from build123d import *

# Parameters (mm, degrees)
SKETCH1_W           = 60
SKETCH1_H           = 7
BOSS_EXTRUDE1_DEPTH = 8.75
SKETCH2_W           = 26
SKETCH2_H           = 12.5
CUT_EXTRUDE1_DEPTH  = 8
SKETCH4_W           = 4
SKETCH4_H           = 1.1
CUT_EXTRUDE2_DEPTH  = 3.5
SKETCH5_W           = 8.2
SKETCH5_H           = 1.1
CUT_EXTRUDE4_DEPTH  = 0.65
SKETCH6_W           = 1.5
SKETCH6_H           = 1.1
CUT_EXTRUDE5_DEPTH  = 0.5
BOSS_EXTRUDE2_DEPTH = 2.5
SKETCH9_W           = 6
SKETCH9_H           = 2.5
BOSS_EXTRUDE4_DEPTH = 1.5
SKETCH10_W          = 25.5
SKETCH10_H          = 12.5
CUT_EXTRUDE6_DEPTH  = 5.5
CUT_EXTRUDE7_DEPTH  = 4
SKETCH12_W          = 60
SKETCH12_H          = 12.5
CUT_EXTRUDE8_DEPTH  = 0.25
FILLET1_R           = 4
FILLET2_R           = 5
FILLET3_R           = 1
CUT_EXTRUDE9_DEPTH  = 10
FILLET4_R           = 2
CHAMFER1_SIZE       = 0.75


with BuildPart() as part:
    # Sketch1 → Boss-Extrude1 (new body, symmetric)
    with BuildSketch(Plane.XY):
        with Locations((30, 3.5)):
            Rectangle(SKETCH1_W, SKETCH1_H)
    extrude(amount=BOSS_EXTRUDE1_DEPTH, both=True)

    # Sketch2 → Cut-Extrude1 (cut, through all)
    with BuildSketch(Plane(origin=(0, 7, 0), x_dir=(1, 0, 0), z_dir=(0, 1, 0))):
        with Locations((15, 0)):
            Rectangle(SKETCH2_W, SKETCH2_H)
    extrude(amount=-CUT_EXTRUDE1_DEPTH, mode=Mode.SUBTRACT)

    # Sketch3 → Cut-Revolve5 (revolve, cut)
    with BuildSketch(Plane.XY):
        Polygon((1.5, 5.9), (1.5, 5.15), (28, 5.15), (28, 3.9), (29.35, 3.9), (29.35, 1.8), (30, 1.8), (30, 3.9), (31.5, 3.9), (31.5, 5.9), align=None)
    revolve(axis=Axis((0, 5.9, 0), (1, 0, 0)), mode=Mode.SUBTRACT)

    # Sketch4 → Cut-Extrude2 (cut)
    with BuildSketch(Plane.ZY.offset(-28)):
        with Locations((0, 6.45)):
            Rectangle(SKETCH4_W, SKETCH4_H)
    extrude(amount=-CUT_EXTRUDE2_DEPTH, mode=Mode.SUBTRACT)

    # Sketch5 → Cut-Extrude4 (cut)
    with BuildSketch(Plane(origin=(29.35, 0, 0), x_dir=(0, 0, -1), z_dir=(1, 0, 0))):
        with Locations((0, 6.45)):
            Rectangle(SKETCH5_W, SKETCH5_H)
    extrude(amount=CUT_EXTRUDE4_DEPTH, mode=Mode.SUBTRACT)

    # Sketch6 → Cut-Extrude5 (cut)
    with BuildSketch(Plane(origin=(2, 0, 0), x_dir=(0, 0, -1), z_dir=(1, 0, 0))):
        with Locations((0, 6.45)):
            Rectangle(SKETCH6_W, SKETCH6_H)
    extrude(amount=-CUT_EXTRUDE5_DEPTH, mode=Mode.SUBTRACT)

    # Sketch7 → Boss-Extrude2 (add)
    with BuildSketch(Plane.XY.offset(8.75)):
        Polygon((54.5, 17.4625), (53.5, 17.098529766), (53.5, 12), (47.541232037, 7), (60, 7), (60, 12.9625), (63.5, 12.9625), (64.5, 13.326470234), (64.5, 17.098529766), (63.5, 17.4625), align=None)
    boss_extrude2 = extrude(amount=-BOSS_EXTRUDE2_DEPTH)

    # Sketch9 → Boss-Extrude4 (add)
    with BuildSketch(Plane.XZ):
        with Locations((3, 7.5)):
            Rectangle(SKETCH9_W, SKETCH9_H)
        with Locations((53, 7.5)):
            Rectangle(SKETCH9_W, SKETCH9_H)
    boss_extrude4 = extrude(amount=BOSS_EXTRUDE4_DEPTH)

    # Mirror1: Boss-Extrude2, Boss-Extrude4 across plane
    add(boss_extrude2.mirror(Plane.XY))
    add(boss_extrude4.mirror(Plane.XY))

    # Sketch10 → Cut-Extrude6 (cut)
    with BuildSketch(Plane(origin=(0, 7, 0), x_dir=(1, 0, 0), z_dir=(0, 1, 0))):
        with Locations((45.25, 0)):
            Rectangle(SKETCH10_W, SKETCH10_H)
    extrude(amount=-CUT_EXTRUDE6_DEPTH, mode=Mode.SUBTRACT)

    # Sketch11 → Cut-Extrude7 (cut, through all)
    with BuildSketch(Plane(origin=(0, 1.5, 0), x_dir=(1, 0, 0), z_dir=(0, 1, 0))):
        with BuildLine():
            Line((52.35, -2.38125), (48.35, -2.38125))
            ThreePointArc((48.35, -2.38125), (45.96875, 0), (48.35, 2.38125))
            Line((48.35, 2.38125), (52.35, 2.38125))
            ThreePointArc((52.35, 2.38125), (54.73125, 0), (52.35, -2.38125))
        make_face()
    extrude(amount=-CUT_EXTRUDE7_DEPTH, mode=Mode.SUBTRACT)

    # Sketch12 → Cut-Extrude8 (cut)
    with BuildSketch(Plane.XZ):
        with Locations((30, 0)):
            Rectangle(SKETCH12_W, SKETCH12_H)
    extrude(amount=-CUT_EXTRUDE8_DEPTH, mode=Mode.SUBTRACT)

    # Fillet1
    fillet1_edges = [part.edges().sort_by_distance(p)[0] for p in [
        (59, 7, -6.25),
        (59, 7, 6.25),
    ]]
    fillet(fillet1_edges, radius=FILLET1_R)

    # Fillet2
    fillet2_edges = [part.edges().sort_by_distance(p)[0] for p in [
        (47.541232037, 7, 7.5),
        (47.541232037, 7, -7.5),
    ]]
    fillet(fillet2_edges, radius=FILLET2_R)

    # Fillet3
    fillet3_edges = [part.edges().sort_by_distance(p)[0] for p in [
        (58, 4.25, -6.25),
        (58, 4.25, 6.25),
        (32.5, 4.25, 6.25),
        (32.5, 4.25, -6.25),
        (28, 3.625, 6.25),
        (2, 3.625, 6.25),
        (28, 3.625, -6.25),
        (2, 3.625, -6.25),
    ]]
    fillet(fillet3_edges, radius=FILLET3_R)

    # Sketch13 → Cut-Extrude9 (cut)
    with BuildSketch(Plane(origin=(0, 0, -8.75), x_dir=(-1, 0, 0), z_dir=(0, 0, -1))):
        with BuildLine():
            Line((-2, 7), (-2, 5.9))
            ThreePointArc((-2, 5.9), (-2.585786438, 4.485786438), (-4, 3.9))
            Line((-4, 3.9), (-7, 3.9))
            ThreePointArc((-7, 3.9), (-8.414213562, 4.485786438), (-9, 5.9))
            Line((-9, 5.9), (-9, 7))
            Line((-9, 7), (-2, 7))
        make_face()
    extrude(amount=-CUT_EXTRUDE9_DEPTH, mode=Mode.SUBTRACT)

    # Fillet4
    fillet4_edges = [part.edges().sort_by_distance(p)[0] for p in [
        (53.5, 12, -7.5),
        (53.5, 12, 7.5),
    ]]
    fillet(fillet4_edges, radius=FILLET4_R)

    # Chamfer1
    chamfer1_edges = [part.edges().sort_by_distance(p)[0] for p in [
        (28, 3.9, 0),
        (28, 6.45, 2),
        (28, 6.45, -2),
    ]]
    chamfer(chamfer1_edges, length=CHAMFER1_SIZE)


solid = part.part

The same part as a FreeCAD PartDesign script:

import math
import FreeCAD as App
import Part
import Sketcher

V = App.Vector
Q = App.Units.Quantity


def edges_at(feature, points):
    """Names of the edges that pass closest to the given points."""
    edges = feature.Shape.Edges
    near = lambda p: min(range(len(edges)), key=lambda i: edges[i].distToShape(Part.Vertex(*p))[0])
    return sorted({f"Edge{near(p) + 1}" for p in points})


def add_polygon(sketch, points):
    """Adds a closed chain of lines whose ends are joined by coincident constraints."""
    first, n = sketch.GeometryCount, len(points)
    for a, b in zip(points, points[1:] + points[:1]):
        sketch.addGeometry(Part.LineSegment(App.Vector(*a, 0), App.Vector(*b, 0)), False)
    for i in range(n):
        sketch.addConstraint(Sketcher.Constraint("Coincident", first + i, 2, first + (i + 1) % n, 1))

doc = App.newDocument("Part")
body = doc.addObject("PartDesign::Body", "Body")

# Sketch on XY plane
sketch1 = body.newObject("Sketcher::SketchObject", "Sketch")
sketch1.AttachmentSupport = (doc.getObject("XY_Plane"), [""])
sketch1.MapMode = "FlatFace"
add_polygon(sketch1, [(0, 7), (0, 0), (60, 0), (60, 7)])  # lines 0-3
sketch1.addConstraint([
    Sketcher.Constraint("Vertical", 0),
    Sketcher.Constraint("Horizontal", 1),
    Sketcher.Constraint("Vertical", 2),
    Sketcher.Constraint("Horizontal", 3),
    Sketcher.Constraint("Coincident", 0, 2, -1, 1),
    Sketcher.Constraint("DistanceX", 1, 1, 1, 2, 60.0),
    Sketcher.Constraint("DistanceY", 0, 2, 0, 1, 7.0),
])
pad1 = body.newObject("PartDesign::Pad", "Pad")
pad1.Profile = sketch1
pad1.Length = 17.5
pad1.Midplane = True

# Sketch on XZ plane
sketch2 = body.newObject("Sketcher::SketchObject", "Sketch001")
sketch2.AttachmentSupport = (doc.getObject("XZ_Plane"), [""])
sketch2.MapMode = "FlatFace"
sketch2.AttachmentOffset = App.Placement(V(0, 0, -7), App.Rotation())
add_polygon(sketch2, [(2, -6.25), (2, 6.25), (28, 6.25), (28, -6.25)])  # lines 0-3
sketch2.addConstraint([
    Sketcher.Constraint("Vertical", 0),
    Sketcher.Constraint("Horizontal", 1),
    Sketcher.Constraint("Vertical", 2),
    Sketcher.Constraint("Horizontal", 3),
    Sketcher.Constraint("DistanceX", 1, 1, 1, 2, 26.0),
    Sketcher.Constraint("DistanceY", 0, 1, 0, 2, 12.5),
    Sketcher.Constraint("DistanceX", -1, 1, 0, 2, 2.0),
    Sketcher.Constraint("DistanceY", -1, 1, 0, 2, 6.25),
])
pocket1 = body.newObject("PartDesign::Pocket", "Pocket")
pocket1.Profile = sketch2
pocket1.Type = "ThroughAll"
pocket1.Reversed = True

# Sketch on XY plane
sketch3 = body.newObject("Sketcher::SketchObject", "Sketch002")
sketch3.AttachmentSupport = (doc.getObject("XY_Plane"), [""])
sketch3.MapMode = "FlatFace"
add_polygon(sketch3, [(1.5, 5.9), (1.5, 5.15), (28, 5.15), (28, 3.9), (29.35, 3.9), (29.35, 1.8), (30, 1.8), (30, 3.9), (31.5, 3.9), (31.5, 5.9)])  # lines 0-9
sketch3.addGeometry(Part.LineSegment(V(1.5, 5.9, 0), V(31.5, 5.9, 0)), True)  # axis
sketch3.addConstraint([
    Sketcher.Constraint("Vertical", 0),
    Sketcher.Constraint("Horizontal", 1),
    Sketcher.Constraint("Vertical", 2),
    Sketcher.Constraint("Horizontal", 3),
    Sketcher.Constraint("Vertical", 4),
    Sketcher.Constraint("Horizontal", 5),
    Sketcher.Constraint("Vertical", 6),
    Sketcher.Constraint("Horizontal", 7),
    Sketcher.Constraint("Vertical", 8),
    Sketcher.Constraint("Horizontal", 9),
    Sketcher.Constraint("Horizontal", 10),
    Sketcher.Constraint("Coincident", 10, 1, 9, 2),
    Sketcher.Constraint("Horizontal", 3, 2, 6, 2),
    Sketcher.Constraint("Vertical", 7, 2, 10, 2),
    Sketcher.Constraint("DistanceX", 9, 2, 9, 1, 30.0),
    Sketcher.Constraint("DistanceY", 8, 1, 8, 2, 2.0),
    Sketcher.Constraint("DistanceX", 1, 1, 1, 2, 26.5),
    Sketcher.Constraint("DistanceX", 7, 1, 7, 2, 1.5),
    Sketcher.Constraint("DistanceY", 4, 2, 4, 1, 2.1),
    Sketcher.Constraint("DistanceX", -1, 1, 1, 2, 28.0),
    Sketcher.Constraint("DistanceX", 3, 1, 3, 2, 1.35),
    Sketcher.Constraint("DistanceY", 0, 2, 0, 1, 0.75),
    Sketcher.Constraint("DistanceY", -1, 1, 2, 2, 3.9),
])
groove = body.newObject("PartDesign::Groove", "Groove")
groove.Profile = sketch3
groove.ReferenceAxis = (sketch3, ["Axis0"])
groove.Angle = 360

# Sketch on YZ plane
sketch4 = body.newObject("Sketcher::SketchObject", "Sketch003")
sketch4.AttachmentSupport = (doc.getObject("YZ_Plane"), [""])
sketch4.MapMode = "FlatFace"
sketch4.AttachmentOffset = App.Placement(V(0, 0, 28), App.Rotation())
add_polygon(sketch4, [(7, -2), (5.9, -2), (5.9, 2), (7, 2)])  # lines 0-3
sketch4.addConstraint([
    Sketcher.Constraint("Horizontal", 0),
    Sketcher.Constraint("Vertical", 1),
    Sketcher.Constraint("Horizontal", 2),
    Sketcher.Constraint("Vertical", 3),
    Sketcher.Constraint("DistanceY", 1, 1, 1, 2, 4.0),
    Sketcher.Constraint("DistanceX", 0, 2, 0, 1, 1.1),
    Sketcher.Constraint("DistanceY", 0, 2, -1, 1, 2.0),
    Sketcher.Constraint("DistanceX", -1, 1, 2, 2, 7.0),
])
pocket2 = body.newObject("PartDesign::Pocket", "Pocket001")
pocket2.Profile = sketch4
pocket2.Length = 3.5
pocket2.Reversed = True

# Sketch on YZ plane
sketch5 = body.newObject("Sketcher::SketchObject", "Sketch004")
sketch5.AttachmentSupport = (doc.getObject("YZ_Plane"), [""])
sketch5.MapMode = "FlatFace"
sketch5.AttachmentOffset = App.Placement(V(0, 0, 29.35), App.Rotation())
add_polygon(sketch5, [(7, 4.1), (5.9, 4.1), (5.9, -4.1), (7, -4.1)])  # lines 0-3
sketch5.addConstraint([
    Sketcher.Constraint("Horizontal", 0),
    Sketcher.Constraint("Vertical", 1),
    Sketcher.Constraint("Horizontal", 2),
    Sketcher.Constraint("Vertical", 3),
    Sketcher.Constraint("DistanceX", 0, 2, 0, 1, 1.1),
    Sketcher.Constraint("DistanceY", 1, 2, 1, 1, 8.2),
    Sketcher.Constraint("DistanceX", -1, 1, 2, 2, 7.0),
    Sketcher.Constraint("DistanceY", -1, 1, 0, 2, 4.1),
])
pocket3 = body.newObject("PartDesign::Pocket", "Pocket002")
pocket3.Profile = sketch5
pocket3.Length = 0.65
pocket3.Reversed = True

# Sketch on YZ plane
sketch6 = body.newObject("Sketcher::SketchObject", "Sketch005")
sketch6.AttachmentSupport = (doc.getObject("YZ_Plane"), [""])
sketch6.MapMode = "FlatFace"
sketch6.AttachmentOffset = App.Placement(V(0, 0, 2), App.Rotation())
add_polygon(sketch6, [(7, 0.75), (5.9, 0.75), (5.9, -0.75), (7, -0.75)])  # lines 0-3
sketch6.addConstraint([
    Sketcher.Constraint("Horizontal", 0),
    Sketcher.Constraint("Vertical", 1),
    Sketcher.Constraint("Horizontal", 2),
    Sketcher.Constraint("Vertical", 3),
    Sketcher.Constraint("DistanceX", 0, 2, 0, 1, 1.1),
    Sketcher.Constraint("DistanceY", 1, 2, 1, 1, 1.5),
    Sketcher.Constraint("DistanceX", -1, 1, 2, 2, 7.0),
    Sketcher.Constraint("DistanceY", -1, 1, 0, 2, 0.75),
])
pocket4 = body.newObject("PartDesign::Pocket", "Pocket003")
pocket4.Profile = sketch6
pocket4.Length = 0.5

# Sketch on XY plane
sketch7 = body.newObject("Sketcher::SketchObject", "Sketch006")
sketch7.AttachmentSupport = (doc.getObject("XY_Plane"), [""])
sketch7.MapMode = "FlatFace"
sketch7.AttachmentOffset = App.Placement(V(0, 0, 8.75), App.Rotation())
add_polygon(sketch7, [(54.5, 17.4625), (53.5, 17.09853), (53.5, 12), (47.541232, 7), (60, 7), (60, 12.9625), (63.5, 12.9625), (64.5, 13.32647), (64.5, 17.09853), (63.5, 17.4625)])  # lines 0-9
sketch7.addConstraint([
    Sketcher.Constraint("Vertical", 1),
    Sketcher.Constraint("Horizontal", 3),
    Sketcher.Constraint("Vertical", 4),
    Sketcher.Constraint("Horizontal", 5),
    Sketcher.Constraint("Vertical", 7),
    Sketcher.Constraint("Horizontal", 9),
    Sketcher.Constraint("Parallel", 0, 6),
    Sketcher.Constraint("Horizontal", 0, 2, 7, 2),
    Sketcher.Constraint("Vertical", 5, 2, 8, 2),
    Sketcher.Constraint("Equal", 0, 6),
    Sketcher.Constraint("DistanceX", 9, 2, 9, 1, 9.0),
    Sketcher.Constraint("Angle", 0, Q("-160 deg")),
    Sketcher.Constraint("Angle", 2, Q("-140 deg")),
    Sketcher.Constraint("DistanceX", 5, 1, 5, 2, 3.5),
    Sketcher.Constraint("DistanceY", -1, 1, 1, 2, 12.0),
    Sketcher.Constraint("DistanceY", -1, 1, 2, 2, 7.0),
    Sketcher.Constraint("DistanceX", -1, 1, 3, 2, 60.0),
    Sketcher.Constraint("DistanceX", 1, 2, 5, 2, 10.0),
    Sketcher.Constraint("DistanceY", 5, 2, 8, 2, 4.5),
    Sketcher.Constraint("DistanceY", 4, 1, 4, 2, 5.9625),
])
pad2 = body.newObject("PartDesign::Pad", "Pad001")
pad2.Profile = sketch7
pad2.Length = 2.5
pad2.Reversed = True

# Sketch on XZ plane
sketch8 = body.newObject("Sketcher::SketchObject", "Sketch007")
sketch8.AttachmentSupport = (doc.getObject("XZ_Plane"), [""])
sketch8.MapMode = "FlatFace"
add_polygon(sketch8, [(0, 8.75), (0, 6.25), (6, 6.25), (6, 8.75)])  # lines 0-3
add_polygon(sketch8, [(50, 8.75), (50, 6.25), (56, 6.25), (56, 8.75)])  # lines 4-7
sketch8.addConstraint([
    Sketcher.Constraint("Vertical", 0),
    Sketcher.Constraint("Horizontal", 1),
    Sketcher.Constraint("Vertical", 2),
    Sketcher.Constraint("Horizontal", 3),
    Sketcher.Constraint("Vertical", 4),
    Sketcher.Constraint("Horizontal", 5),
    Sketcher.Constraint("Vertical", 6),
    Sketcher.Constraint("Horizontal", 7),
    Sketcher.Constraint("PointOnObject", 0, 2, -2),
    Sketcher.Constraint("Horizontal", 1, 2, 4, 2),
    Sketcher.Constraint("Horizontal", 3, 2, 6, 2),
    Sketcher.Constraint("Equal", 3, 5),
    Sketcher.Constraint("DistanceX", 1, 1, 1, 2, 6.0),
    Sketcher.Constraint("DistanceY", 0, 2, 0, 1, 2.5),
    Sketcher.Constraint("DistanceX", -1, 1, 4, 2, 50.0),
    Sketcher.Constraint("DistanceY", -1, 1, 0, 2, 6.25),
])
pad3 = body.newObject("PartDesign::Pad", "Pad002")
pad3.Profile = sketch8
pad3.Length = 1.5
doc.recompute()

mirrored = body.newObject("PartDesign::Mirrored", "Mirrored")
mirrored.Originals = [pad2, pad3]
mirrored.MirrorPlane = (doc.getObject("XY_Plane"), [""])
body.Tip = mirrored

# Sketch on XZ plane
sketch9 = body.newObject("Sketcher::SketchObject", "Sketch008")
sketch9.AttachmentSupport = (doc.getObject("XZ_Plane"), [""])
sketch9.MapMode = "FlatFace"
sketch9.AttachmentOffset = App.Placement(V(0, 0, -7), App.Rotation())
add_polygon(sketch9, [(32.5, -6.25), (32.5, 6.25), (58, 6.25), (58, -6.25)])  # lines 0-3
sketch9.addConstraint([
    Sketcher.Constraint("Vertical", 0),
    Sketcher.Constraint("Horizontal", 1),
    Sketcher.Constraint("Vertical", 2),
    Sketcher.Constraint("Horizontal", 3),
    Sketcher.Constraint("DistanceX", 1, 1, 1, 2, 25.5),
    Sketcher.Constraint("DistanceY", 0, 1, 0, 2, 12.5),
    Sketcher.Constraint("DistanceX", -1, 1, 1, 2, 58.0),
    Sketcher.Constraint("DistanceY", -1, 1, 0, 2, 6.25),
])
pocket5 = body.newObject("PartDesign::Pocket", "Pocket004")
pocket5.Profile = sketch9
pocket5.Length = 5.5
pocket5.Reversed = True

# Sketch on XZ plane
sketch10 = body.newObject("Sketcher::SketchObject", "Sketch009")
sketch10.AttachmentSupport = (doc.getObject("XZ_Plane"), [""])
sketch10.MapMode = "FlatFace"
sketch10.AttachmentOffset = App.Placement(V(0, 0, -1.5), App.Rotation())
sketch10.addGeometry([
    Part.LineSegment(V(48.35, 2.38125, 0), V(52.35, 2.38125, 0)),
    Part.ArcOfCircle(Part.Circle(V(52.35, 0, 0), V(0, 0, 1), 2.38125), math.radians(-90), math.radians(90)),
    Part.LineSegment(V(52.35, -2.38125, 0), V(48.35, -2.38125, 0)),
    Part.ArcOfCircle(Part.Circle(V(48.35, 0, 0), V(0, 0, 1), 2.38125), math.radians(90), math.radians(270)),
], False)
sketch10.addConstraint([
    Sketcher.Constraint("Tangent", 0, 2, 1, 2),
    Sketcher.Constraint("Tangent", 1, 1, 2, 1),
    Sketcher.Constraint("Tangent", 2, 2, 3, 2),
    Sketcher.Constraint("Tangent", 3, 1, 0, 1),
    Sketcher.Constraint("Horizontal", 0),
    Sketcher.Constraint("Horizontal", 2),
    Sketcher.Constraint("PointOnObject", 1, 3, -1),
    Sketcher.Constraint("DistanceX", 0, 1, 0, 2, 4.0),
    Sketcher.Constraint("DistanceX", -1, 1, 1, 3, 52.35),
    Sketcher.Constraint("Radius", 1, 2.38125),
])
pocket6 = body.newObject("PartDesign::Pocket", "Pocket005")
pocket6.Profile = sketch10
pocket6.Type = "ThroughAll"
pocket6.Reversed = True

# Sketch on XZ plane
sketch11 = body.newObject("Sketcher::SketchObject", "Sketch010")
sketch11.AttachmentSupport = (doc.getObject("XZ_Plane"), [""])
sketch11.MapMode = "FlatFace"
add_polygon(sketch11, [(0, 6.25), (0, -6.25), (60, -6.25), (60, 6.25)])  # lines 0-3
sketch11.addConstraint([
    Sketcher.Constraint("Vertical", 0),
    Sketcher.Constraint("Horizontal", 1),
    Sketcher.Constraint("Vertical", 2),
    Sketcher.Constraint("Horizontal", 3),
    Sketcher.Constraint("Symmetric", 0, 2, 3, 2, -1, 1),
    Sketcher.Constraint("DistanceX", 1, 1, 1, 2, 60.0),
    Sketcher.Constraint("DistanceY", 0, 2, 0, 1, 12.5),
])
pocket7 = body.newObject("PartDesign::Pocket", "Pocket006")
pocket7.Profile = sketch11
pocket7.Length = 0.25
doc.recompute()

fillet = body.newObject("PartDesign::Fillet", "Fillet")
fillet.Base = (pocket7, edges_at(pocket7, [(59, 7, -6.25), (59, 7, 6.25)]))
fillet.Radius = 4
doc.recompute()

fillet2 = body.newObject("PartDesign::Fillet", "Fillet001")
fillet2.Base = (fillet, edges_at(fillet, [(47.541, 7, 7.5), (47.541, 7, -7.5)]))
fillet2.Radius = 5
doc.recompute()

fillet3 = body.newObject("PartDesign::Fillet", "Fillet002")
fillet3.Base = (fillet2, edges_at(fillet2, [
    (58, 6.25, -6.25),
    (58, 6.25, 6.25),
    (32.5, 4.25, 6.25),
    (32.5, 4.25, -6.25),
    (28, 3.625, 6.25),
    (2, 3.625, 6.25),
    (28, 3.625, -6.25),
    (2, 3.625, -6.25),
]))
fillet3.Radius = 1

# Sketch on XY plane
sketch12 = body.newObject("Sketcher::SketchObject", "Sketch011")
sketch12.AttachmentSupport = (doc.getObject("XY_Plane"), [""])
sketch12.MapMode = "FlatFace"
sketch12.AttachmentOffset = App.Placement(V(0, 0, -8.75), App.Rotation())
sketch12.addGeometry([
    Part.LineSegment(V(2, 5.9, 0), V(2, 7, 0)),  # 0
    Part.LineSegment(V(2, 7, 0), V(9, 7, 0)),  # 1
    Part.LineSegment(V(9, 7, 0), V(9, 5.9, 0)),  # 2
    Part.ArcOfCircle(Part.Circle(V(7, 5.9, 0), V(0, 0, 1), 2), math.radians(-90), math.radians(0)),  # 3
    Part.LineSegment(V(7, 3.9, 0), V(4, 3.9, 0)),  # 4
    Part.ArcOfCircle(Part.Circle(V(4, 5.9, 0), V(0, 0, 1), 2), math.radians(-180), math.radians(-90)),  # 5
], False)
sketch12.addConstraint([
    Sketcher.Constraint("Coincident", 0, 2, 1, 1),
    Sketcher.Constraint("Coincident", 1, 2, 2, 1),
    Sketcher.Constraint("Tangent", 2, 2, 3, 2),
    Sketcher.Constraint("Tangent", 3, 1, 4, 1),
    Sketcher.Constraint("Tangent", 4, 2, 5, 2),
    Sketcher.Constraint("Tangent", 5, 1, 0, 1),
    Sketcher.Constraint("Vertical", 0),
    Sketcher.Constraint("Horizontal", 1),
    Sketcher.Constraint("Vertical", 2),
    Sketcher.Constraint("Horizontal", 4),
    Sketcher.Constraint("Equal", 3, 5),
    Sketcher.Constraint("Radius", 3, 2.0),
    Sketcher.Constraint("DistanceX", 1, 1, 1, 2, 7.0),
    Sketcher.Constraint("DistanceY", 0, 1, 0, 2, 1.1),
    Sketcher.Constraint("DistanceX", -1, 1, 3, 3, 7.0),
    Sketcher.Constraint("DistanceY", -1, 1, 0, 2, 7.0),
])
pocket8 = body.newObject("PartDesign::Pocket", "Pocket007")
pocket8.Profile = sketch12
pocket8.Length = 10
pocket8.Reversed = True
doc.recompute()

fillet4 = body.newObject("PartDesign::Fillet", "Fillet003")
fillet4.Base = (pocket8, edges_at(pocket8, [(53.5, 12, -7.5), (53.5, 12, 7.5)]))
fillet4.Radius = 2
doc.recompute()

chamfer = body.newObject("PartDesign::Chamfer", "Chamfer")
chamfer.Base = (fillet4, edges_at(fillet4, [(28, 3.9, 0), (28, 6.45, 2), (28, 6.45, -2)]))
chamfer.Size = 0.75

doc.recompute()
